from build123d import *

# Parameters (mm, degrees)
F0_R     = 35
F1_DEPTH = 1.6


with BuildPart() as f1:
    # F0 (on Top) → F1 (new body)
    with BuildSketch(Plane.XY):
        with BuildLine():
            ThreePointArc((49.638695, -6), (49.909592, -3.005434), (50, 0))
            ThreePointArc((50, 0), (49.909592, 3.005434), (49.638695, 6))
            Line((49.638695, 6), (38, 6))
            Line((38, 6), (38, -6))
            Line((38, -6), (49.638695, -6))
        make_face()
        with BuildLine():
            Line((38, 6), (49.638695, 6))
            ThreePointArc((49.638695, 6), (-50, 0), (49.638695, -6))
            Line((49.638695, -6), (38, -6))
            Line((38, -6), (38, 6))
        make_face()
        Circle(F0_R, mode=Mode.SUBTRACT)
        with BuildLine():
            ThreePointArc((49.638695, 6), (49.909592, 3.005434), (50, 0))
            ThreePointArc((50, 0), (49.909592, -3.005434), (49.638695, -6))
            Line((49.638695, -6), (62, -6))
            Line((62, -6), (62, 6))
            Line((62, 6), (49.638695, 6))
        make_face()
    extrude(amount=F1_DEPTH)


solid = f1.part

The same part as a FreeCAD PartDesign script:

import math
import FreeCAD as App
import Part
import Sketcher
from FreeCAD import Vector

doc = App.newDocument("Part")
params = doc.addObject("Spreadsheet::Sheet", "Params")
for row, (alias, value) in enumerate([
    ("sketch1_diameter", "70 mm"),
    ("sketch1_radius", "50 mm"),
    ("sketch1_height", "12 mm"),
    ("pad1_length", "1.6 mm"),
], start=1):
    params.set(f"A{row}", alias)
    params.set(f"B{row}", "=" + value)
    params.setAlias(f"B{row}", alias)

body = doc.addObject("PartDesign::Body", "Body")

# Sketch on XY plane
sketch1 = doc.addObject("Sketcher::SketchObject", "Sketch")
body.addObject(sketch1)
sketch1.AttachmentSupport = (doc.XY_Plane, [""])
sketch1.MapMode = "FlatFace"
sketch1.addGeometry([
    Part.ArcOfCircle(Part.Circle(Vector(0, 0, 0), Vector(0, 0, 1), 50), math.radians(7), math.radians(353)),  # 0
    Part.LineSegment(Vector(50, -6, 0), Vector(62, -6, 0)),  # 1
    Part.LineSegment(Vector(62, -6, 0), Vector(62, 6, 0)),  # 2
    Part.LineSegment(Vector(62, 6, 0), Vector(50, 6, 0)),  # 3
    Part.Circle(Vector(0, 0, 0), Vector(0, 0, 1), 35),  # 4
], False)
sketch1.addConstraint([
    Sketcher.Constraint("Coincident", 0, 2, 1, 1),
    Sketcher.Constraint("Coincident", 1, 2, 2, 1),
    Sketcher.Constraint("Coincident", 2, 2, 3, 1),
    Sketcher.Constraint("Coincident", 3, 2, 0, 1),
    Sketcher.Constraint("Horizontal", 1),
    Sketcher.Constraint("Vertical", 2),
    Sketcher.Constraint("Horizontal", 3),
    Sketcher.Constraint("Coincident", 0, 3, -1, 1),
    Sketcher.Constraint("Coincident", 4, 3, -1, 1),
    Sketcher.Constraint("Vertical", 0, 2, 3, 2),
    Sketcher.Constraint("Diameter", 4, 70.0),
    Sketcher.Constraint("Radius", 0, 50.0),
    Sketcher.Constraint("DistanceY", 2, 1, 2, 2, 12.0),
    Sketcher.Constraint("DistanceX", -1, 1, 1, 2, 62.0),
])
sketch1.setExpression("Constraints[10]", "Params.sketch1_diameter")
sketch1.setExpression("Constraints[11]", "Params.sketch1_radius")
sketch1.setExpression("Constraints[12]", "Params.sketch1_height")
pad1 = doc.addObject("PartDesign::Pad", "Pad")
body.addObject(pad1)
pad1.Profile = sketch1
pad1.setExpression("Length", "Params.pad1_length")

doc.recompute()
